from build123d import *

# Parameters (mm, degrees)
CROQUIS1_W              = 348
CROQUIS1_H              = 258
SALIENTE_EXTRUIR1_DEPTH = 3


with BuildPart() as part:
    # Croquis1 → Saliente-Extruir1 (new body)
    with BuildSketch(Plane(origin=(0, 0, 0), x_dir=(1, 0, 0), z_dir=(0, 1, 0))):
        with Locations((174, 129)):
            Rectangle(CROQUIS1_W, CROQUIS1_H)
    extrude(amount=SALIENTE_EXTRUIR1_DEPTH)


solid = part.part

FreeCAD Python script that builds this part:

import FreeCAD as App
import Part
import Sketcher
Q = App.Units.Quantity


def add_polygon(sketch, points):
    """Adds a closed chain of lines whose ends are joined by coincident constraints."""
    first, n = sketch.GeometryCount, len(points)
    for a, b in zip(points, points[1:] + points[:1]):
        sketch.addGeometry(Part.LineSegment(App.Vector(*a, 0), App.Vector(*b, 0)), False)
    for i in range(n):
        sketch.addConstraint(Sketcher.Constraint("Coincident", first + i, 2, first + (i + 1) % n, 1))

doc = App.newDocument("Part")
body = doc.addObject("PartDesign::Body", "Body")

# Sketch on XZ plane
sketch1 = body.newObject("Sketcher::SketchObject", "Sketch")
sketch1.AttachmentSupport = (doc.getObject("XZ_Plane"), [""])
sketch1.MapMode = "FlatFace"
add_polygon(sketch1, [(0, -258), (0, 0), (348, 0), (348, -258)])  # lines 0-3
sketch1.addConstraint([
    Sketcher.Constraint("Vertical", 0),
    Sketcher.Constraint("Horizontal", 1),
    Sketcher.Constraint("Vertical", 2),
    Sketcher.Constraint("Horizontal", 3),
    Sketcher.Constraint("Coincident", 0, 2, -1, 1),
    Sketcher.Constraint("DistanceX", 1, 1, 1, 2, Q("348 mm")),
    Sketcher.Constraint("DistanceY", 0, 1, 0, 2, Q("258 mm")),
])
pad1 = body.newObject("PartDesign::Pad", "Pad")
pad1.Profile = sketch1
pad1.Length = 3
pad1.Reversed = True

doc.recompute()
